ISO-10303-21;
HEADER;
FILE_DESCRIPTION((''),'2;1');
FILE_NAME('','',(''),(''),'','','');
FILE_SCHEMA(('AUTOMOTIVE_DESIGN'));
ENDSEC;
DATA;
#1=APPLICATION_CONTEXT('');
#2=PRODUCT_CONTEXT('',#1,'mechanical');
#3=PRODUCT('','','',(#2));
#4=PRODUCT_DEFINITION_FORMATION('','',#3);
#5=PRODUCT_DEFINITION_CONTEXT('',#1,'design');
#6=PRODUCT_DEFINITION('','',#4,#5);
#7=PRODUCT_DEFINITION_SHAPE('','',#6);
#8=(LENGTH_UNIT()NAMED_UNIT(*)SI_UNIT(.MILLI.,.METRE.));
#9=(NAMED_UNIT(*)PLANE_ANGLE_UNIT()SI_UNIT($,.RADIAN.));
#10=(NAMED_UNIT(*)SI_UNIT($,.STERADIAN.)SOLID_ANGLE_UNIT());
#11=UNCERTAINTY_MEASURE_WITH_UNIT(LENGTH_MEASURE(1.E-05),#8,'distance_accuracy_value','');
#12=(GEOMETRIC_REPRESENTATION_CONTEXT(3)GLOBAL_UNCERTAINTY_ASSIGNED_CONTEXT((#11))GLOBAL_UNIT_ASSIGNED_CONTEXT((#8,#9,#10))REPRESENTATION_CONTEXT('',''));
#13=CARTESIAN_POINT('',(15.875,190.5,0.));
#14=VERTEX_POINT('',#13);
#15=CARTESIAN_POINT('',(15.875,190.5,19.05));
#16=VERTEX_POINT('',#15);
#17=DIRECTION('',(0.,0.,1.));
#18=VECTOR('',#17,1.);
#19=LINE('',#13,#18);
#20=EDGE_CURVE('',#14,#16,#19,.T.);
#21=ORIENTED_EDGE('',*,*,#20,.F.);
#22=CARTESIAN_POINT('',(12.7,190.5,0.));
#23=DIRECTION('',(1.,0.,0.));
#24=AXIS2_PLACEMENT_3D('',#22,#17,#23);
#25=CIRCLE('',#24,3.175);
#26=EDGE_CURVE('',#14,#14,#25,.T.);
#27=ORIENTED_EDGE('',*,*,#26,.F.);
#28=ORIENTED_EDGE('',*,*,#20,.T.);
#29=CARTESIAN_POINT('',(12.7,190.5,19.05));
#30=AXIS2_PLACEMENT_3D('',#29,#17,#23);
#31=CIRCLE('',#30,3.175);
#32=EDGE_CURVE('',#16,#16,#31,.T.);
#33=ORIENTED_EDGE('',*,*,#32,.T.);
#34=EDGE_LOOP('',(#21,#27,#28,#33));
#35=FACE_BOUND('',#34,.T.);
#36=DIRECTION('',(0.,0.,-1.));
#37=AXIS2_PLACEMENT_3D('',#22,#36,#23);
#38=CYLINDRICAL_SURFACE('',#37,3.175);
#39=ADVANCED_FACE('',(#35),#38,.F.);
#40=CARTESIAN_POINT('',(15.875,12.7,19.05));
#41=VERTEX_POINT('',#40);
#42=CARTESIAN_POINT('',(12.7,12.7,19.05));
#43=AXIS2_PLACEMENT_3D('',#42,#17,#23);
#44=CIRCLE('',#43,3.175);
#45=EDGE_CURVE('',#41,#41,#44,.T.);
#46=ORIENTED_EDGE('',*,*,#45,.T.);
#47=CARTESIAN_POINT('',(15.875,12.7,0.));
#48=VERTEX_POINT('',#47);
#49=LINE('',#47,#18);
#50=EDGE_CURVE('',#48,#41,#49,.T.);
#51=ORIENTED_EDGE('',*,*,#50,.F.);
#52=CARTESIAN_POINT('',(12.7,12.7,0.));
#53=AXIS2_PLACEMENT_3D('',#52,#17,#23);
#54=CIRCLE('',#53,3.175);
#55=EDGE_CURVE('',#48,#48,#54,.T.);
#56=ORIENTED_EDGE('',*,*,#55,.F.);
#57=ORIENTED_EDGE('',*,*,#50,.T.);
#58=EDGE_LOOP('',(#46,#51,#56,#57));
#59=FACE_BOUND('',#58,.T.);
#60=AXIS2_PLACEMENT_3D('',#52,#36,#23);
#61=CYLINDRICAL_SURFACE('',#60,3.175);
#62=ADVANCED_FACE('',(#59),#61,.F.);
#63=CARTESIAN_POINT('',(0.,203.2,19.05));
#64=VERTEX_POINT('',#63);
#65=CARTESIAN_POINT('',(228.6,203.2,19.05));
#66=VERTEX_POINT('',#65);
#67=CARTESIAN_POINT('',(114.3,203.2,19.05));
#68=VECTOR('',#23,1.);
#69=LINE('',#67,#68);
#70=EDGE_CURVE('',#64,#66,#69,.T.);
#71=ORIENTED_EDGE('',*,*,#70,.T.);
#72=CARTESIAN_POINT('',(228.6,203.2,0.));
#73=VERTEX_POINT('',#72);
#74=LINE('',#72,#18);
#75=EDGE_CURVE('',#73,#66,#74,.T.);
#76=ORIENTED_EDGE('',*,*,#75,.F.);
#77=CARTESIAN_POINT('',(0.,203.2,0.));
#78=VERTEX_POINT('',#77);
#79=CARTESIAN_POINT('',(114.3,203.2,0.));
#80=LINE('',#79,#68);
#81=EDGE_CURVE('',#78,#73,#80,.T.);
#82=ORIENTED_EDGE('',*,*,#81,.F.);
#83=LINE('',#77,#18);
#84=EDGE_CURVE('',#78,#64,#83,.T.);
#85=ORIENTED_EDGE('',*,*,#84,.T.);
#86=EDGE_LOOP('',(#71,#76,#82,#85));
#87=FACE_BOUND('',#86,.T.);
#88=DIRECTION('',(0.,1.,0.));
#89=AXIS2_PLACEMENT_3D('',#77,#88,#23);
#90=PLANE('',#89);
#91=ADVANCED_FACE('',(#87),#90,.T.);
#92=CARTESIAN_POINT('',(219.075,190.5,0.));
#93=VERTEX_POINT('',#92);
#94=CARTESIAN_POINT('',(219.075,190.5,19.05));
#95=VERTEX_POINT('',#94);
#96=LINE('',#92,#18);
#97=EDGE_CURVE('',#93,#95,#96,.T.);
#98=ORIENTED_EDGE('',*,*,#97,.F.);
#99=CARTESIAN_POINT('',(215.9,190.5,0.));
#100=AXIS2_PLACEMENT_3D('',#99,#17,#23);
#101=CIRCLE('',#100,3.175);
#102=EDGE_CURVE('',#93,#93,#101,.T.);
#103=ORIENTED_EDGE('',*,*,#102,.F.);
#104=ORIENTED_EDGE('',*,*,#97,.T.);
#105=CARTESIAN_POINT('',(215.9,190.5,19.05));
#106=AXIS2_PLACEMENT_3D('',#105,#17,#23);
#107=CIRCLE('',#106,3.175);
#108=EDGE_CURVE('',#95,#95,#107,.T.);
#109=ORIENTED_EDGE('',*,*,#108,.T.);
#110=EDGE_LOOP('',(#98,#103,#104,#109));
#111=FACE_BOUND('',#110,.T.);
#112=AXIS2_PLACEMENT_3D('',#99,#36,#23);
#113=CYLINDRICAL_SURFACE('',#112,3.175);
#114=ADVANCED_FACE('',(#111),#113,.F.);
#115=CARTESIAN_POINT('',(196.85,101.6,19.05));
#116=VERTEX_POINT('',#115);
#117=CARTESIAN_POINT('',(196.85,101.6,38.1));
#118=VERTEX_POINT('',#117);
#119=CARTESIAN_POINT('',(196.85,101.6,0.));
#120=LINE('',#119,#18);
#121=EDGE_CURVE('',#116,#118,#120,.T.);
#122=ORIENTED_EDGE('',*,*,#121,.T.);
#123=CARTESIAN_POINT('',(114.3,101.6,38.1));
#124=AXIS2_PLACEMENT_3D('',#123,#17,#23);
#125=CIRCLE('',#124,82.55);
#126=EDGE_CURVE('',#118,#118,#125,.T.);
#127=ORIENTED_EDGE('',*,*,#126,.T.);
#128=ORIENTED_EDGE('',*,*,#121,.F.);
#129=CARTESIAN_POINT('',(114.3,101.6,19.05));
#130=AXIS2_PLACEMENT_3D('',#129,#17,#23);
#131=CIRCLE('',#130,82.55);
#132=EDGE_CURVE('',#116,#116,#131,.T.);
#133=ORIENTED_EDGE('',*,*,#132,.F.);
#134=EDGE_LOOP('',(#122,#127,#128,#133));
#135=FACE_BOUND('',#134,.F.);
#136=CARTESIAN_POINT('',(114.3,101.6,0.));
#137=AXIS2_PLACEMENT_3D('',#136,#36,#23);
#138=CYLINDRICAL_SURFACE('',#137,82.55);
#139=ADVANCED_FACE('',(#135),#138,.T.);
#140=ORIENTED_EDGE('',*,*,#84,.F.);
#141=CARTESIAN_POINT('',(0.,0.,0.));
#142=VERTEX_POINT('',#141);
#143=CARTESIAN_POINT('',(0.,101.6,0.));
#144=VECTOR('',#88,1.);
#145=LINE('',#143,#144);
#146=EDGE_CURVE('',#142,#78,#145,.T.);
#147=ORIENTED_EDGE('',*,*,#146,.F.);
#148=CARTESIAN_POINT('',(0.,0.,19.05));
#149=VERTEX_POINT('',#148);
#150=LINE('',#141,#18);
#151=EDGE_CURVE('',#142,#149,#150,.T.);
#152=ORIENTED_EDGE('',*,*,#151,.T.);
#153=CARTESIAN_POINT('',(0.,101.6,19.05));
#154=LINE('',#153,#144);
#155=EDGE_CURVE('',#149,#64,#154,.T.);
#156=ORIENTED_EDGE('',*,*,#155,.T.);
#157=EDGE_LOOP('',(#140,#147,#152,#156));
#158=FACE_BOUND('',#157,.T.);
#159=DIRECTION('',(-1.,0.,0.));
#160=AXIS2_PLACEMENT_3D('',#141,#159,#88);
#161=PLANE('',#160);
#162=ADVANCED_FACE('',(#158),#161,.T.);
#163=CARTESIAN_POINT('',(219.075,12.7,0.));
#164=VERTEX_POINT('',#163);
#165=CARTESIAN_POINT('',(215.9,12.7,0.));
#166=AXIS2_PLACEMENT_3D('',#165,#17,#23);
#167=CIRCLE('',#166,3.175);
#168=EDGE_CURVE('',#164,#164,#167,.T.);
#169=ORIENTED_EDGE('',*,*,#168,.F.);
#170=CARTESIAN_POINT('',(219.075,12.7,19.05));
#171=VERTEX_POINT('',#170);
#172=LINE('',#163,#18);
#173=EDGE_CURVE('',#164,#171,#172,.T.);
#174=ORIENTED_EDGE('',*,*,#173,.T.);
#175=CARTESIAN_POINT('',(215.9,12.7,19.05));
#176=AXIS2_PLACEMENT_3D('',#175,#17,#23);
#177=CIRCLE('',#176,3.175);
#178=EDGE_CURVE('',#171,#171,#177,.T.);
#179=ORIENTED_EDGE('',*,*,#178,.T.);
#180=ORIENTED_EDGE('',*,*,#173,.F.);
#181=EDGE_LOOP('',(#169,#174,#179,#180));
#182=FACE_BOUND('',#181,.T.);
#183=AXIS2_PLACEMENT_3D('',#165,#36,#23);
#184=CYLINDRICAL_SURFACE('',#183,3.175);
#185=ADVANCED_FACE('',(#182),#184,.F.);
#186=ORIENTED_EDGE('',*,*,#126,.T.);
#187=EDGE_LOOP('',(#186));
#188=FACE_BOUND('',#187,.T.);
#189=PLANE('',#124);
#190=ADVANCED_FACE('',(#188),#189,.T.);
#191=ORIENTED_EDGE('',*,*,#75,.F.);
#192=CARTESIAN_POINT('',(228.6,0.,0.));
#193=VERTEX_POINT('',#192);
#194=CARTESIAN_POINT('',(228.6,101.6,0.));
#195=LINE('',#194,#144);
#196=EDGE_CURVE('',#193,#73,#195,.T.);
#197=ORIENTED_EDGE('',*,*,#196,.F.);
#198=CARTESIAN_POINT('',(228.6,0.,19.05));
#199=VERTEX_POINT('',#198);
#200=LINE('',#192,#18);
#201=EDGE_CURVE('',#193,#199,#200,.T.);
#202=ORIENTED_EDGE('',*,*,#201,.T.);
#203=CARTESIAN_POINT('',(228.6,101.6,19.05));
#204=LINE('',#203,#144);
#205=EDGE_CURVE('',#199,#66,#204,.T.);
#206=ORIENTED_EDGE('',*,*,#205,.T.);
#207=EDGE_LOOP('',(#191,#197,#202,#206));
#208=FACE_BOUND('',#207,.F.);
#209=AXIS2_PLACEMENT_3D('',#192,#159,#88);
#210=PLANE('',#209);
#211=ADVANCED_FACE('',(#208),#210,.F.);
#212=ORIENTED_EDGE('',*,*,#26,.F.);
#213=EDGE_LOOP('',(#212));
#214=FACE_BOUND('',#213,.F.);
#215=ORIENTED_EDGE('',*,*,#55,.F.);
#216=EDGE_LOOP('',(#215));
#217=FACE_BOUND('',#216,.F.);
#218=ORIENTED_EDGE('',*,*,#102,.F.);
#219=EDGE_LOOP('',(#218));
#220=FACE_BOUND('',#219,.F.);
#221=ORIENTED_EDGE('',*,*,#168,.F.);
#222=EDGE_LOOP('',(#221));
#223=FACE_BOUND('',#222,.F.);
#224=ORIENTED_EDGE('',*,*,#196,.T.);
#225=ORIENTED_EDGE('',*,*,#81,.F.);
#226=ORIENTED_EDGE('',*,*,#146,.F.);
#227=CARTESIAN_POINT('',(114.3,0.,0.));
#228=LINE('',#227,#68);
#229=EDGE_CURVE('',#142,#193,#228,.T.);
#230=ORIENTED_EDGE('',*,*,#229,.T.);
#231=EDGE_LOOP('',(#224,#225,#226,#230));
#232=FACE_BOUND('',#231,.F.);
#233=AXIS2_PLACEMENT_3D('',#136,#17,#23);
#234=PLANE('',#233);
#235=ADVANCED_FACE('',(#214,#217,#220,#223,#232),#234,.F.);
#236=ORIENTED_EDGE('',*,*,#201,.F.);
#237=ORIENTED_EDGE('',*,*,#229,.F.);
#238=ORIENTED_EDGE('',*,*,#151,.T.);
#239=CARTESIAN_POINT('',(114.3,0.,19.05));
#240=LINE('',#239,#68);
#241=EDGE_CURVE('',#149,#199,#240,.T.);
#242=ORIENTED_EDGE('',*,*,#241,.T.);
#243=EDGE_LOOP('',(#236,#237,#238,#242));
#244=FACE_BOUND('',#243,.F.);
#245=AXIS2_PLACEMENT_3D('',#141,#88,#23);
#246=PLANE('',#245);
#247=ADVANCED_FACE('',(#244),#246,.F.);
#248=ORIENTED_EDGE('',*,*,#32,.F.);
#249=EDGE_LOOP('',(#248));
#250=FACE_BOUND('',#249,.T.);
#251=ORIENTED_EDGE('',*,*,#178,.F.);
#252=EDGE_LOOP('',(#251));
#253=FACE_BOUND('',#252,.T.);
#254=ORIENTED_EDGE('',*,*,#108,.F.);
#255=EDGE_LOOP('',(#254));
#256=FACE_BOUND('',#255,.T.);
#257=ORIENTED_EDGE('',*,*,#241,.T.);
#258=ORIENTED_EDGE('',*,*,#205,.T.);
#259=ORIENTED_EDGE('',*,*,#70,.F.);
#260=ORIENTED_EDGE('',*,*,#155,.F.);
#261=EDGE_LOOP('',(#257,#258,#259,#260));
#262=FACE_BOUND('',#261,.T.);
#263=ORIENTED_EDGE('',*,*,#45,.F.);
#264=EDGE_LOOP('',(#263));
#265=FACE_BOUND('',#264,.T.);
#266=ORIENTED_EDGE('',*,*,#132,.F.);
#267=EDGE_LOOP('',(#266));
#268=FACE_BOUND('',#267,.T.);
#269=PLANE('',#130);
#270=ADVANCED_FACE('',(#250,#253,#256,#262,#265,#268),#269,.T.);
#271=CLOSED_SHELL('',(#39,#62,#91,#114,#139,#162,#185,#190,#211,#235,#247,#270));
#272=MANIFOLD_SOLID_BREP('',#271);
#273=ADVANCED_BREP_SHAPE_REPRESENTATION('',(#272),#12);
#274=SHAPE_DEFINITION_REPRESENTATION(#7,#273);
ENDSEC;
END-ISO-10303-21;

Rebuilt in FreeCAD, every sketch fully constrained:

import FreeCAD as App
import Part
import Sketcher
from FreeCAD import Vector
Q = App.Units.Quantity


def add_polygon(sketch, points):
    """Adds a closed chain of lines whose ends are joined by coincident constraints."""
    first, n = sketch.GeometryCount, len(points)
    for a, b in zip(points, points[1:] + points[:1]):
        sketch.addGeometry(Part.LineSegment(App.Vector(*a, 0), App.Vector(*b, 0)), False)
    for i in range(n):
        sketch.addConstraint(Sketcher.Constraint("Coincident", first + i, 2, first + (i + 1) % n, 1))

doc = App.newDocument("Part")
body = doc.addObject("PartDesign::Body", "Body")

sketch1 = body.newObject("Sketcher::SketchObject", "Sketch")
sketch1.AttachmentSupport = (doc.getObject("XY_Plane"), [""])
sketch1.MapMode = "FlatFace"
sketch1.addGeometry(Part.Circle(Vector(114, 102, 0), Vector(0, 0, 1), 83), False)
sketch1.addConstraint([
    Sketcher.Constraint("Diameter", 0, Q("6.5 in")),
    Sketcher.Constraint("DistanceY", -1, 1, 0, 3, Q("4 in")),
    Sketcher.Constraint("DistanceX", -1, 1, 0, 3, Q("4.5 in")),
])
pad1 = body.newObject("PartDesign::Pad", "Pad")
pad1.Profile = sketch1
pad1.Length = Q("1.5 in")

sketch2 = body.newObject("Sketcher::SketchObject", "Sketch001")
sketch2.AttachmentSupport = (doc.getObject("XY_Plane"), [""])
sketch2.MapMode = "FlatFace"
add_polygon(sketch2, [(0, 203.2), (0, 0), (228.6, 0), (228.6, 203.2)])
sketch2.addGeometry(Part.Circle(Vector(12.7, 12.7, 0), Vector(0, 0, 1), 3.2), False)
sketch2.addGeometry(Part.Circle(Vector(215.9, 12.7, 0), Vector(0, 0, 1), 3.2), False)
sketch2.addGeometry(Part.Circle(Vector(114.3, 101.6, 0), Vector(0, 0, 1), 82.5), False)
sketch2.addGeometry(Part.Circle(Vector(12.7, 190.5, 0), Vector(0, 0, 1), 3.2), False)
sketch2.addGeometry(Part.Circle(Vector(215.9, 190.5, 0), Vector(0, 0, 1), 3.2), False)
sketch2.addConstraint([
    Sketcher.Constraint("Vertical", 0),
    Sketcher.Constraint("Horizontal", 1),
    Sketcher.Constraint("Vertical", 2),
    Sketcher.Constraint("Horizontal", 3),
    Sketcher.Constraint("Coincident", 0, 2, -1, 1),
    Sketcher.Constraint("Equal", 4, 5),
    Sketcher.Constraint("Equal", 5, 7),
    Sketcher.Constraint("Equal", 7, 8),
    Sketcher.Constraint("Horizontal", 4, 3, 5, 3),
    Sketcher.Constraint("Horizontal", 7, 3, 8, 3),
    Sketcher.Constraint("Vertical", 4, 3, 7, 3),
    Sketcher.Constraint("Vertical", 5, 3, 8, 3),
    Sketcher.Constraint("Diameter", 6, Q("6.5 in")),
    Sketcher.Constraint("Diameter", 4, Q("0.25 in")),
    Sketcher.Constraint("DistanceX", 1, 1, 1, 2, Q("9 in")),
    Sketcher.Constraint("DistanceY", 0, 2, 0, 1, Q("8 in")),
    Sketcher.Constraint("DistanceY", -1, 1, 6, 3, Q("4 in")),
    Sketcher.Constraint("DistanceX", 4, 3, 5, 3, Q("8 in")),
    Sketcher.Constraint("DistanceX", 4, 3, 6, 3, Q("4 in")),
    Sketcher.Constraint("DistanceY", 4, 3, 7, 3, Q("7 in")),
    Sketcher.Constraint("DistanceX", -1, 1, 4, 3, Q("0.5 in")),
    Sketcher.Constraint("DistanceY", -1, 1, 4, 3, Q("0.5 in")),
])
pad2 = body.newObject("PartDesign::Pad", "Pad001")
pad2.Profile = sketch2
pad2.Length = Q("0.75 in")

doc.recompute()
